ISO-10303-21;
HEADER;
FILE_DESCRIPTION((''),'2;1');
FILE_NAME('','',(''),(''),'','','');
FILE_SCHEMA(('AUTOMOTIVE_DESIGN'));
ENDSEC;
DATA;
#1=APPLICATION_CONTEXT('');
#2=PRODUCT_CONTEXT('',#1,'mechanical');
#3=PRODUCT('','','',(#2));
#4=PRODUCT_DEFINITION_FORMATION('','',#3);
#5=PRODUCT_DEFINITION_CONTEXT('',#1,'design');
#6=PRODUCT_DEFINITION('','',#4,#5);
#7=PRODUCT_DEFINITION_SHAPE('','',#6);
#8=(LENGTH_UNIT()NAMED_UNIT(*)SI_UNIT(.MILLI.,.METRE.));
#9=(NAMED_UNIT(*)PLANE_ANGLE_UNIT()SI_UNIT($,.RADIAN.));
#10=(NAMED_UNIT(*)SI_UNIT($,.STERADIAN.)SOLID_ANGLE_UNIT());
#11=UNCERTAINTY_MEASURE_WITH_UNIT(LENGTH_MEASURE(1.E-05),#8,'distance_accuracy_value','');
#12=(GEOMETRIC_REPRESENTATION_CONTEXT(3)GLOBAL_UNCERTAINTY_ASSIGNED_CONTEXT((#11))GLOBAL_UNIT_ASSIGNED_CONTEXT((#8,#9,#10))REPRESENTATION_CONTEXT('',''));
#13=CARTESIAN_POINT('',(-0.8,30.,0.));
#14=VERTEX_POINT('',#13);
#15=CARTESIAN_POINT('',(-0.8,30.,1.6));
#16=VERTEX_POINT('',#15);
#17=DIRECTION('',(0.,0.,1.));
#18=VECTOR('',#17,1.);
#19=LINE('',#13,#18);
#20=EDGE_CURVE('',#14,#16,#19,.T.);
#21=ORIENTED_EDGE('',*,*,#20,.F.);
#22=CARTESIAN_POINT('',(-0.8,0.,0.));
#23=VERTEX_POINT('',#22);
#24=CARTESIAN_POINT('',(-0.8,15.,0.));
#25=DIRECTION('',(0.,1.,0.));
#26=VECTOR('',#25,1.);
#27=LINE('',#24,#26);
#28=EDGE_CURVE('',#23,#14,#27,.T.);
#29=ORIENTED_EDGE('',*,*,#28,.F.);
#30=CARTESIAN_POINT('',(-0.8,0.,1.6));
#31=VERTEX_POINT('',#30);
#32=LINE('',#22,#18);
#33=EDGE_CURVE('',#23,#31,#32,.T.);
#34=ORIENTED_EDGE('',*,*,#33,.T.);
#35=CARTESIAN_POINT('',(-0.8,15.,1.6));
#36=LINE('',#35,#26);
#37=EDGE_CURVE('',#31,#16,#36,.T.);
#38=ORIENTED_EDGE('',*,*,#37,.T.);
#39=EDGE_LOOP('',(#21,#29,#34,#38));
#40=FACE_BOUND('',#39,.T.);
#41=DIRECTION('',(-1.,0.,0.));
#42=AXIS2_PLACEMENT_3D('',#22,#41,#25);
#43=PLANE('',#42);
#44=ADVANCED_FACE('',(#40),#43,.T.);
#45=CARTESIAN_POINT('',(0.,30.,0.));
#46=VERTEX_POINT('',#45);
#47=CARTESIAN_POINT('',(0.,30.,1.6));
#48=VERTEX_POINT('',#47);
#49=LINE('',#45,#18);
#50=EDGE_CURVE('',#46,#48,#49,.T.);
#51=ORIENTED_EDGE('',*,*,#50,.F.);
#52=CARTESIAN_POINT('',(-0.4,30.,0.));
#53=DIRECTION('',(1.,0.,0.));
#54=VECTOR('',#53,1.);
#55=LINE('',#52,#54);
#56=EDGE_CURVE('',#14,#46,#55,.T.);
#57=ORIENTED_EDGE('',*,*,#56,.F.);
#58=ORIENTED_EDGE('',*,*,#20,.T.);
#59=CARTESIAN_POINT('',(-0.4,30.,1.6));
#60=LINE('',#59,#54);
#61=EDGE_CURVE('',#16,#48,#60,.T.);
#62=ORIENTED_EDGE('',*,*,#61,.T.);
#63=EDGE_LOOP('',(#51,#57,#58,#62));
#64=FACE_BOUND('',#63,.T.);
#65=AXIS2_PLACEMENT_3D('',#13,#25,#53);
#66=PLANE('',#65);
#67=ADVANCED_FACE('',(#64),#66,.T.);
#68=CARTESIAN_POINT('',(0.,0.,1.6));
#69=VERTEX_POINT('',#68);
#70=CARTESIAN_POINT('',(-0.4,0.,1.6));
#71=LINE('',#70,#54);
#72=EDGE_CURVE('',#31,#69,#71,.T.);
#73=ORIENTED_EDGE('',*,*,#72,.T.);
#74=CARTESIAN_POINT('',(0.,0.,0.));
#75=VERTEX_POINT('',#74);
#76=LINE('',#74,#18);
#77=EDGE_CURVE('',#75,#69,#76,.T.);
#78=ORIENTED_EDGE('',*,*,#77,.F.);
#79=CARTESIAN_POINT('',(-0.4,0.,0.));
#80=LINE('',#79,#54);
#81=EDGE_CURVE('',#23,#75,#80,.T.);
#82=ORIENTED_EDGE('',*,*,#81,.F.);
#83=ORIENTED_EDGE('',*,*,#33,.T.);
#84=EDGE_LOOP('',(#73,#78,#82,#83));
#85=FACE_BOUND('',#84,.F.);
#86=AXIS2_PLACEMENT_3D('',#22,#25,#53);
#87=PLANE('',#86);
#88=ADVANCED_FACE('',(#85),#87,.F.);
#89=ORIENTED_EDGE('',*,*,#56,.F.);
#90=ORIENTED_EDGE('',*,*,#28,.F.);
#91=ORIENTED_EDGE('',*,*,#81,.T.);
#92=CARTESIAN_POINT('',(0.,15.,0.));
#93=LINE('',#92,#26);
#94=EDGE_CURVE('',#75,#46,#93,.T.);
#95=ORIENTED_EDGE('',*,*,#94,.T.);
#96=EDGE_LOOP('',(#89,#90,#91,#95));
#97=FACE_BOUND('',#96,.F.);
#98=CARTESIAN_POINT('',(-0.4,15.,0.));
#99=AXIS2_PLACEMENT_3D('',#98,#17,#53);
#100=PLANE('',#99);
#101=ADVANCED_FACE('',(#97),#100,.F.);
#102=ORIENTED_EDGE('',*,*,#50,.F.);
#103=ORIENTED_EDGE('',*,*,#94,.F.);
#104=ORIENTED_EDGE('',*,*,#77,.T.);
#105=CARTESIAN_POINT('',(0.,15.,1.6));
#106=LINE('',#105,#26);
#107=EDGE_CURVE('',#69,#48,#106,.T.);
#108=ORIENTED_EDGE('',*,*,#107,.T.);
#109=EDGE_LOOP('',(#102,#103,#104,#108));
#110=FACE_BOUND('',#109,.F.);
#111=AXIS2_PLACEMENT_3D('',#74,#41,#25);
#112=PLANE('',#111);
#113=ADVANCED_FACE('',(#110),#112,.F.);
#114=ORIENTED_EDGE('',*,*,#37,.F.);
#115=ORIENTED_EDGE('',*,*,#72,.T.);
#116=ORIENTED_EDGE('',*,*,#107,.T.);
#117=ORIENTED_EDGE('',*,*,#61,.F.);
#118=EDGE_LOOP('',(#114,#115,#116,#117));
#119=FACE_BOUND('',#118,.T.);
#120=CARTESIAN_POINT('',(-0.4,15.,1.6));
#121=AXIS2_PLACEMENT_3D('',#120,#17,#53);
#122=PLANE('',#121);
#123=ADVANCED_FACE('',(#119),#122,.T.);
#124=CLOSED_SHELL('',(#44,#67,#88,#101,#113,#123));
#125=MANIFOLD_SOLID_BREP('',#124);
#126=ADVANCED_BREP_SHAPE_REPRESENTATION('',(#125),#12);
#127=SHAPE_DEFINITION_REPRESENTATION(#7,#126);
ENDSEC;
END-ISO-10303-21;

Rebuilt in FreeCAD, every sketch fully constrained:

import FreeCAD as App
import Part
import Sketcher

V = App.Vector
Q = App.Units.Quantity

doc = App.newDocument("Part")
body = doc.addObject("PartDesign::Body", "Body")

# Sketch on XY plane
sketch1 = body.newObject("Sketcher::SketchObject", "Sketch")
sketch1.AttachmentSupport = (doc.getObject("XY_Plane"), [""])
sketch1.MapMode = "FlatFace"
sketch1.addGeometry(Part.LineSegment(V(-0.8, 30, 0), V(-0.8, 0, 0)), False)
sketch1.addGeometry(Part.LineSegment(V(-0.8, 0, 0), V(0, 0, 0)), False)
sketch1.addGeometry(Part.LineSegment(V(0, 0, 0), V(0, 30, 0)), False)
sketch1.addGeometry(Part.LineSegment(V(0, 30, 0), V(-0.8, 30, 0)), False)
sketch1.addConstraint(Sketcher.Constraint("Coincident", 0, 2, 1, 1))
sketch1.addConstraint(Sketcher.Constraint("Coincident", 1, 2, 2, 1))
sketch1.addConstraint(Sketcher.Constraint("Coincident", 2, 2, 3, 1))
sketch1.addConstraint(Sketcher.Constraint("Coincident", 3, 2, 0, 1))
sketch1.addConstraint(Sketcher.Constraint("Vertical", 0))
sketch1.addConstraint(Sketcher.Constraint("Horizontal", 1))
sketch1.addConstraint(Sketcher.Constraint("Vertical", 2))
sketch1.addConstraint(Sketcher.Constraint("Horizontal", 3))
sketch1.addConstraint(Sketcher.Constraint("Coincident", 1, 2, -1, 1))
sketch1.addConstraint(Sketcher.Constraint("DistanceY", 0, 2, 0, 1, Q("30 mm")))
sketch1.addConstraint(Sketcher.Constraint("DistanceX", 1, 1, 1, 2, Q("0.8 mm")))
pad1 = body.newObject("PartDesign::Pad", "Pad")
pad1.Profile = sketch1
pad1.Length = 1.6

doc.recompute()
